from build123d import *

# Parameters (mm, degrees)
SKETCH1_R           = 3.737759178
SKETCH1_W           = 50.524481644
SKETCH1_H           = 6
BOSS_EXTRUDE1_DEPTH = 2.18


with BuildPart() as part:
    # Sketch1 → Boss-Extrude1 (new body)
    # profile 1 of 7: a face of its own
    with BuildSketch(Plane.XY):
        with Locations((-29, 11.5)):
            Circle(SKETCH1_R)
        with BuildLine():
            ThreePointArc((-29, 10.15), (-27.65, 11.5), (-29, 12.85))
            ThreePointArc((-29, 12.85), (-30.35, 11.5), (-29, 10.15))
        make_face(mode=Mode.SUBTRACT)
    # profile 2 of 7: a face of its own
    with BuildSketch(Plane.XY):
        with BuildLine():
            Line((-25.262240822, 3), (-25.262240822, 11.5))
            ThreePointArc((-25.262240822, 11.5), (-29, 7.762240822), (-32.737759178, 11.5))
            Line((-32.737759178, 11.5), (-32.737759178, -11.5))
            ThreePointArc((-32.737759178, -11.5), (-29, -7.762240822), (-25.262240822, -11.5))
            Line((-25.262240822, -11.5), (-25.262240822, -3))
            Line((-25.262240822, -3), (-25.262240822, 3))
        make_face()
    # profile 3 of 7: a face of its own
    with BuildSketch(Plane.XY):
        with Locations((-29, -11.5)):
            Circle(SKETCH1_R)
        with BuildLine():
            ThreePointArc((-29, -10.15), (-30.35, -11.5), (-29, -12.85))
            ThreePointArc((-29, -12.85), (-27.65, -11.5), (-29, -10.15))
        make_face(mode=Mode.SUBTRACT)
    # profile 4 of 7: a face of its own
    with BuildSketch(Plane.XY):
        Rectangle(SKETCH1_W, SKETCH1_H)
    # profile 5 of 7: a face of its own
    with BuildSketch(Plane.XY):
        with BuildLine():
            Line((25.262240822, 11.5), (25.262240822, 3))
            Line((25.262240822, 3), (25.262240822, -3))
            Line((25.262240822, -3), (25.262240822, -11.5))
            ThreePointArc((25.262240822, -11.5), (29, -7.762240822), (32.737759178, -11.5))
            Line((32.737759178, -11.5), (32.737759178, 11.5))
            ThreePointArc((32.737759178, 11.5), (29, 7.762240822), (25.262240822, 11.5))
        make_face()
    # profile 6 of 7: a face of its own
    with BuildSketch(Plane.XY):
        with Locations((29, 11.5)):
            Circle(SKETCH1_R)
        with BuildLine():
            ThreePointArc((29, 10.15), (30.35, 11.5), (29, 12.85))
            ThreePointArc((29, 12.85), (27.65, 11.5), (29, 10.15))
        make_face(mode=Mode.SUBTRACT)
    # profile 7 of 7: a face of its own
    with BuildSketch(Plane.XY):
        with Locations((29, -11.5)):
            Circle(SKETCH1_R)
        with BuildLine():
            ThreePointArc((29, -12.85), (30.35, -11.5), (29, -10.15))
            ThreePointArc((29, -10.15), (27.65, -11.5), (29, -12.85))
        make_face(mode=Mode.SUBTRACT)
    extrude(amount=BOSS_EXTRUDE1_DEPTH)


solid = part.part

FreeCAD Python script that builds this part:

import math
import FreeCAD as App
import Part
import Sketcher
Q = App.Units.Quantity

doc = App.newDocument("Part")
body = doc.addObject("PartDesign::Body", "Body")

# Sketch on XY plane
sketch1 = body.newObject("Sketcher::SketchObject", "Sketch")
sketch1.AttachmentSupport = (doc.getObject("XY_Plane"), [""])
sketch1.MapMode = "FlatFace"
sketch1.addGeometry(Part.ArcOfCircle(Part.Circle(App.Vector(-29, 11.5, 0), App.Vector(0, 0, 1), 3.7), math.radians(0), math.radians(180)), False)
sketch1.addGeometry(Part.LineSegment(App.Vector(-32.7, 11.5, 0), App.Vector(-32.7, -11.5, 0)), False)
sketch1.addGeometry(Part.ArcOfCircle(Part.Circle(App.Vector(-29, -11.5, 0), App.Vector(0, 0, 1), 3.7), math.radians(180), math.radians(360)), False)
sketch1.addGeometry(Part.LineSegment(App.Vector(-25.3, -11.5, 0), App.Vector(-25.3, -3, 0)), False)
sketch1.addGeometry(Part.LineSegment(App.Vector(-25.3, -3, 0), App.Vector(25.3, -3, 0)), False)
sketch1.addGeometry(Part.LineSegment(App.Vector(25.3, -3, 0), App.Vector(25.3, -11.5, 0)), False)
sketch1.addGeometry(Part.ArcOfCircle(Part.Circle(App.Vector(29, -11.5, 0), App.Vector(0, 0, 1), 3.7), math.radians(180), math.radians(360)), False)
sketch1.addGeometry(Part.LineSegment(App.Vector(32.7, -11.5, 0), App.Vector(32.7, 11.5, 0)), False)
sketch1.addGeometry(Part.ArcOfCircle(Part.Circle(App.Vector(29, 11.5, 0), App.Vector(0, 0, 1), 3.7), math.radians(0), math.radians(180)), False)
sketch1.addGeometry(Part.LineSegment(App.Vector(25.3, 11.5, 0), App.Vector(25.3, 3, 0)), False)
sketch1.addGeometry(Part.LineSegment(App.Vector(25.3, 3, 0), App.Vector(-25.3, 3, 0)), False)
sketch1.addGeometry(Part.LineSegment(App.Vector(-25.3, 3, 0), App.Vector(-25.3, 11.5, 0)), False)
sketch1.addGeometry(Part.Circle(App.Vector(-29, 11.5, 0), App.Vector(0, 0, 1), 1.4), False)
sketch1.addGeometry(Part.Circle(App.Vector(-29, -11.5, 0), App.Vector(0, 0, 1), 1.4), False)
sketch1.addGeometry(Part.Circle(App.Vector(29, 11.5, 0), App.Vector(0, 0, 1), 1.4), False)
sketch1.addGeometry(Part.Circle(App.Vector(29, -11.5, 0), App.Vector(0, 0, 1), 1.4), False)
sketch1.addConstraint(Sketcher.Constraint("Tangent", 0, 2, 1, 1))
sketch1.addConstraint(Sketcher.Constraint("Tangent", 1, 2, 2, 1))
sketch1.addConstraint(Sketcher.Constraint("Tangent", 2, 2, 3, 1))
sketch1.addConstraint(Sketcher.Constraint("Coincident", 3, 2, 4, 1))
sketch1.addConstraint(Sketcher.Constraint("Coincident", 4, 2, 5, 1))
sketch1.addConstraint(Sketcher.Constraint("Tangent", 5, 2, 6, 1))
sketch1.addConstraint(Sketcher.Constraint("Tangent", 6, 2, 7, 1))
sketch1.addConstraint(Sketcher.Constraint("Tangent", 7, 2, 8, 1))
sketch1.addConstraint(Sketcher.Constraint("Tangent", 8, 2, 9, 1))
sketch1.addConstraint(Sketcher.Constraint("Coincident", 9, 2, 10, 1))
sketch1.addConstraint(Sketcher.Constraint("Coincident", 10, 2, 11, 1))
sketch1.addConstraint(Sketcher.Constraint("Tangent", 11, 2, 0, 1))
sketch1.addConstraint(Sketcher.Constraint("Vertical", 1))
sketch1.addConstraint(Sketcher.Constraint("Vertical", 3))
sketch1.addConstraint(Sketcher.Constraint("Horizontal", 4))
sketch1.addConstraint(Sketcher.Constraint("Vertical", 5))
sketch1.addConstraint(Sketcher.Constraint("Vertical", 7))
sketch1.addConstraint(Sketcher.Constraint("Vertical", 9))
sketch1.addConstraint(Sketcher.Constraint("Horizontal", 10))
sketch1.addConstraint(Sketcher.Constraint("Vertical", 11))
sketch1.addConstraint(Sketcher.Constraint("Coincident", 12, 3, 0, 3))
sketch1.addConstraint(Sketcher.Constraint("Coincident", 13, 3, 2, 3))
sketch1.addConstraint(Sketcher.Constraint("Coincident", 14, 3, 8, 3))
sketch1.addConstraint(Sketcher.Constraint("Coincident", 15, 3, 6, 3))
sketch1.addConstraint(Sketcher.Constraint("Equal", 0, 2))
sketch1.addConstraint(Sketcher.Constraint("Equal", 2, 6))
sketch1.addConstraint(Sketcher.Constraint("Equal", 6, 8))
sketch1.addConstraint(Sketcher.Constraint("Equal", 12, 13))
sketch1.addConstraint(Sketcher.Constraint("Equal", 13, 14))
sketch1.addConstraint(Sketcher.Constraint("Equal", 14, 15))
sketch1.addConstraint(Sketcher.Constraint("Symmetric", 0, 3, 6, 3, -1, 1))
sketch1.addConstraint(Sketcher.Constraint("Horizontal", 2, 3, 6, 3))
sketch1.addConstraint(Sketcher.Constraint("Horizontal", 0, 3, 8, 3))
sketch1.addConstraint(Sketcher.Constraint("Equal", 5, 9))
sketch1.addConstraint(Sketcher.Constraint("Diameter", 12, Q("2.7 mm")))
sketch1.addConstraint(Sketcher.Constraint("DistanceY", 1, 2, 1, 1, Q("23 mm")))
sketch1.addConstraint(Sketcher.Constraint("DistanceY", 3, 1, 3, 2, Q("8.5 mm")))
sketch1.addConstraint(Sketcher.Constraint("DistanceX", 0, 3, -1, 1, Q("29 mm")))
sketch1.addConstraint(Sketcher.Constraint("Radius", 0, Q("3.737759 mm")))
pad1 = body.newObject("PartDesign::Pad", "Pad")
pad1.Profile = sketch1
pad1.Length = 2.18

doc.recompute()
